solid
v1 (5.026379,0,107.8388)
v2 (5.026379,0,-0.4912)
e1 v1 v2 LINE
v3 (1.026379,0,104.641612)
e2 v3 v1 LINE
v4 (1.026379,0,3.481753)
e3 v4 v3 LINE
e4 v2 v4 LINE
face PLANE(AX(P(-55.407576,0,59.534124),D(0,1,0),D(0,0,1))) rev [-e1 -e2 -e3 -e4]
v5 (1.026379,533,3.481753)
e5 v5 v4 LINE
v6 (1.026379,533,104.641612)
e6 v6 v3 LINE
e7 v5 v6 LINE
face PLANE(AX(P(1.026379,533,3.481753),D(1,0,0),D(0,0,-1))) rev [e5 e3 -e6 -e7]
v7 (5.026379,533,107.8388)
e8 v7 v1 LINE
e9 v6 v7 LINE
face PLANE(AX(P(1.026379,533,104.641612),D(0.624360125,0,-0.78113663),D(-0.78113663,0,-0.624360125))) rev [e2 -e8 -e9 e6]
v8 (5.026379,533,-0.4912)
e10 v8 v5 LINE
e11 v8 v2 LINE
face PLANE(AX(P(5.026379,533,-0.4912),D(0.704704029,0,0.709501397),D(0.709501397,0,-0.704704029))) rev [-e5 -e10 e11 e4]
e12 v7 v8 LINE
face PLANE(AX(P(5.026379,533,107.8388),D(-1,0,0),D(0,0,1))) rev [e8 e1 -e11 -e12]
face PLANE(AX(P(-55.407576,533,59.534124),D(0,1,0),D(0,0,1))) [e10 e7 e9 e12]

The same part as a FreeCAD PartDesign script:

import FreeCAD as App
import Part
import Sketcher
from FreeCAD import Vector

doc = App.newDocument("Part")
body = doc.addObject("PartDesign::Body", "Body")

sketch1 = doc.addObject("Sketcher::SketchObject", "Sketch")
body.addObject(sketch1)
sketch1.AttachmentSupport = (doc.XZ_Plane, [""])
sketch1.MapMode = "FlatFace"
sketch1.addGeometry(Part.LineSegment(Vector(1, 3, 0), Vector(1, 105, 0)), False)
sketch1.addGeometry(Part.LineSegment(Vector(1, 105, 0), Vector(5, 108, 0)), False)
sketch1.addGeometry(Part.LineSegment(Vector(5, 108, 0), Vector(5, 0, 0)), False)
sketch1.addGeometry(Part.LineSegment(Vector(5, 0, 0), Vector(1, 3, 0)), False)
sketch1.addConstraint(Sketcher.Constraint("Coincident", 0, 2, 1, 1))
sketch1.addConstraint(Sketcher.Constraint("Coincident", 1, 2, 2, 1))
sketch1.addConstraint(Sketcher.Constraint("Coincident", 2, 2, 3, 1))
sketch1.addConstraint(Sketcher.Constraint("Coincident", 3, 2, 0, 1))
sketch1.addConstraint(Sketcher.Constraint("Vertical", 0))
sketch1.addConstraint(Sketcher.Constraint("Vertical", 2))
sketch1.addConstraint(Sketcher.Constraint("DistanceX", 0, 2, 1, 2, 4.0))
sketch1.addConstraint(Sketcher.Constraint("DistanceY", 2, 2, 2, 1, 108.33))
sketch1.addConstraint(Sketcher.Constraint("DistanceY", 0, 1, 0, 2, 101.159859))
sketch1.addConstraint(Sketcher.Constraint("DistanceY", -1, 1, 1, 2, 107.8388))
sketch1.addConstraint(Sketcher.Constraint("Distance", 3, 5.637762))
sketch1.addConstraint(Sketcher.Constraint("DistanceX", -1, 1, 0, 2, 1.026379))
pad1 = doc.addObject("PartDesign::Pad", "Pad")
body.addObject(pad1)
pad1.Profile = sketch1
pad1.Length = 533
pad1.Reversed = True

doc.recompute()
